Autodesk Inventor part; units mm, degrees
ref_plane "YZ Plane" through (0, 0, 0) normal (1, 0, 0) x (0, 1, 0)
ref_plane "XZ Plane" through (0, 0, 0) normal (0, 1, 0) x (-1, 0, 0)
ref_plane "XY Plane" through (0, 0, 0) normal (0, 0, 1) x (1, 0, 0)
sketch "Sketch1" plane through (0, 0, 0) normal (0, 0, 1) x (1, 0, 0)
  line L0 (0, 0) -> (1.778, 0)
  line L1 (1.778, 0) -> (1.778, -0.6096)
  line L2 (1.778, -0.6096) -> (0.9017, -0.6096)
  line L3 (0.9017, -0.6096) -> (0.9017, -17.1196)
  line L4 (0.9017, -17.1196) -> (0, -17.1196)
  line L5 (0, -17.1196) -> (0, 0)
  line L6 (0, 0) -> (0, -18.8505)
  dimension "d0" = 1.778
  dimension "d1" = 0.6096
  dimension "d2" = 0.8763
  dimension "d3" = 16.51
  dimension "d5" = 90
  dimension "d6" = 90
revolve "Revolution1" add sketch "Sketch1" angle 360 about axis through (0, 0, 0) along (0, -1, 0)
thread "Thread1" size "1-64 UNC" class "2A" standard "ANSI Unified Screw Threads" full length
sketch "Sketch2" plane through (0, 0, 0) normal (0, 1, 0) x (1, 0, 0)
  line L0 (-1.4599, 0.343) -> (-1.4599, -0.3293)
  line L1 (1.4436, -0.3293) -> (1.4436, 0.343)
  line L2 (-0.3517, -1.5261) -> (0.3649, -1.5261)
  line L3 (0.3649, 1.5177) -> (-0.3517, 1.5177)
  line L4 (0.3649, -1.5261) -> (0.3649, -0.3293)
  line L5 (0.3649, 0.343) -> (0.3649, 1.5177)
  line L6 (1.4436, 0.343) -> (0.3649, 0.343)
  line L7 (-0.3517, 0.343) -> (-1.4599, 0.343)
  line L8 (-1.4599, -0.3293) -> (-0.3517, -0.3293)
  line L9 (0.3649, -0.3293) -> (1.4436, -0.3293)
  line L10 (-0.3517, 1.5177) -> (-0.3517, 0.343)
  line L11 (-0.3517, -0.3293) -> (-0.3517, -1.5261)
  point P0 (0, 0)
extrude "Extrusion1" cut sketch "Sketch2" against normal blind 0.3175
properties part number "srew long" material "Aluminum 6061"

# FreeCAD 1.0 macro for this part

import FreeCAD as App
import Part
import Sketcher
Q = App.Units.Quantity

doc = App.newDocument("Part")
body = doc.addObject("PartDesign::Body", "Body")

sketch1 = body.newObject("Sketcher::SketchObject", "Sketch")
sketch1.AttachmentSupport = (doc.getObject("XY_Plane"), [""])
sketch1.MapMode = "FlatFace"
sketch1.addGeometry(Part.LineSegment(App.Vector(1.8, 0, 0), App.Vector(0, 0, 0)), False)
sketch1.addGeometry(Part.LineSegment(App.Vector(0, 0, 0), App.Vector(0, -17.1, 0)), False)
sketch1.addGeometry(Part.LineSegment(App.Vector(0, -17.1, 0), App.Vector(0.9, -17.1, 0)), False)
sketch1.addGeometry(Part.LineSegment(App.Vector(0.9, -17.1, 0), App.Vector(0.9, -0.6, 0)), False)
sketch1.addGeometry(Part.LineSegment(App.Vector(0.9, -0.6, 0), App.Vector(1.8, -0.6, 0)), False)
sketch1.addGeometry(Part.LineSegment(App.Vector(1.8, -0.6, 0), App.Vector(1.8, 0, 0)), False)
sketch1.addConstraint(Sketcher.Constraint("Coincident", 0, 2, 1, 1))
sketch1.addConstraint(Sketcher.Constraint("Coincident", 1, 2, 2, 1))
sketch1.addConstraint(Sketcher.Constraint("Coincident", 2, 2, 3, 1))
sketch1.addConstraint(Sketcher.Constraint("Coincident", 3, 2, 4, 1))
sketch1.addConstraint(Sketcher.Constraint("Coincident", 4, 2, 5, 1))
sketch1.addConstraint(Sketcher.Constraint("Coincident", 5, 2, 0, 1))
sketch1.addConstraint(Sketcher.Constraint("Horizontal", 0))
sketch1.addConstraint(Sketcher.Constraint("Vertical", 1))
sketch1.addConstraint(Sketcher.Constraint("Horizontal", 2))
sketch1.addConstraint(Sketcher.Constraint("Vertical", 3))
sketch1.addConstraint(Sketcher.Constraint("Horizontal", 4))
sketch1.addConstraint(Sketcher.Constraint("Vertical", 5))
sketch1.addConstraint(Sketcher.Constraint("Coincident", 0, 2, -1, 1))
sketch1.addConstraint(Sketcher.Constraint("DistanceX", 0, 2, 0, 1, Q("0.07 in")))
sketch1.addConstraint(Sketcher.Constraint("DistanceY", 3, 1, 3, 2, Q("0.65 in")))
sketch1.addConstraint(Sketcher.Constraint("DistanceY", 5, 1, 5, 2, Q("0.024 in")))
sketch1.addConstraint(Sketcher.Constraint("DistanceX", 4, 1, 4, 2, Q("0.0345 in")))
revolution = body.newObject("PartDesign::Revolution", "Revolution")
revolution.Profile = sketch1
revolution.ReferenceAxis = (sketch1, ["V_Axis"])
revolution.Angle = 360

sketch2 = body.newObject("Sketcher::SketchObject", "Sketch001")
sketch2.AttachmentSupport = (doc.getObject("XZ_Plane"), [""])
sketch2.MapMode = "FlatFace"
sketch2.addGeometry(Part.LineSegment(App.Vector(-0.4, -0.3, 0), App.Vector(-1.5, -0.3, 0)), False)
sketch2.addGeometry(Part.LineSegment(App.Vector(-1.5, -0.3, 0), App.Vector(-1.5, 0.3, 0)), False)
sketch2.addGeometry(Part.LineSegment(App.Vector(-1.5, 0.3, 0), App.Vector(-0.4, 0.3, 0)), False)
sketch2.addGeometry(Part.LineSegment(App.Vector(-0.4, 0.3, 0), App.Vector(-0.4, 1.5, 0)), False)
sketch2.addGeometry(Part.LineSegment(App.Vector(-0.4, 1.5, 0), App.Vector(0.4, 1.5, 0)), False)
sketch2.addGeometry(Part.LineSegment(App.Vector(0.4, 1.5, 0), App.Vector(0.4, 0.3, 0)), False)
sketch2.addGeometry(Part.LineSegment(App.Vector(0.4, 0.3, 0), App.Vector(1.4, 0.3, 0)), False)
sketch2.addGeometry(Part.LineSegment(App.Vector(1.4, 0.3, 0), App.Vector(1.4, -0.3, 0)), False)
sketch2.addGeometry(Part.LineSegment(App.Vector(1.4, -0.3, 0), App.Vector(0.4, -0.3, 0)), False)
sketch2.addGeometry(Part.LineSegment(App.Vector(0.4, -0.3, 0), App.Vector(0.4, -1.5, 0)), False)
sketch2.addGeometry(Part.LineSegment(App.Vector(0.4, -1.5, 0), App.Vector(-0.4, -1.5, 0)), False)
sketch2.addGeometry(Part.LineSegment(App.Vector(-0.4, -1.5, 0), App.Vector(-0.4, -0.3, 0)), False)
sketch2.addConstraint(Sketcher.Constraint("Coincident", 0, 2, 1, 1))
sketch2.addConstraint(Sketcher.Constraint("Coincident", 1, 2, 2, 1))
sketch2.addConstraint(Sketcher.Constraint("Coincident", 2, 2, 3, 1))
sketch2.addConstraint(Sketcher.Constraint("Coincident", 3, 2, 4, 1))
sketch2.addConstraint(Sketcher.Constraint("Coincident", 4, 2, 5, 1))
sketch2.addConstraint(Sketcher.Constraint("Coincident", 5, 2, 6, 1))
sketch2.addConstraint(Sketcher.Constraint("Coincident", 6, 2, 7, 1))
sketch2.addConstraint(Sketcher.Constraint("Coincident", 7, 2, 8, 1))
sketch2.addConstraint(Sketcher.Constraint("Coincident", 8, 2, 9, 1))
sketch2.addConstraint(Sketcher.Constraint("Coincident", 9, 2, 10, 1))
sketch2.addConstraint(Sketcher.Constraint("Coincident", 10, 2, 11, 1))
sketch2.addConstraint(Sketcher.Constraint("Coincident", 11, 2, 0, 1))
sketch2.addConstraint(Sketcher.Constraint("Horizontal", 0))
sketch2.addConstraint(Sketcher.Constraint("Vertical", 1))
sketch2.addConstraint(Sketcher.Constraint("Horizontal", 2))
sketch2.addConstraint(Sketcher.Constraint("Vertical", 3))
sketch2.addConstraint(Sketcher.Constraint("Horizontal", 4))
sketch2.addConstraint(Sketcher.Constraint("Vertical", 5))
sketch2.addConstraint(Sketcher.Constraint("Horizontal", 6))
sketch2.addConstraint(Sketcher.Constraint("Vertical", 7))
sketch2.addConstraint(Sketcher.Constraint("Horizontal", 8))
sketch2.addConstraint(Sketcher.Constraint("Vertical", 9))
sketch2.addConstraint(Sketcher.Constraint("Horizontal", 10))
sketch2.addConstraint(Sketcher.Constraint("Vertical", 11))
sketch2.addConstraint(Sketcher.Constraint("Horizontal", 2, 2, 5, 2))
sketch2.addConstraint(Sketcher.Constraint("Horizontal", 0, 2, 7, 2))
sketch2.addConstraint(Sketcher.Constraint("Vertical", 5, 2, 8, 2))
sketch2.addConstraint(Sketcher.Constraint("Vertical", 3, 2, 10, 2))
sketch2.addConstraint(Sketcher.Constraint("DistanceX", 0, 2, 0, 1, 1.1082))
sketch2.addConstraint(Sketcher.Constraint("DistanceX", 4, 1, 4, 2, 0.7166))
sketch2.addConstraint(Sketcher.Constraint("DistanceX", 6, 1, 6, 2, 1.0787))
sketch2.addConstraint(Sketcher.Constraint("DistanceY", 1, 1, 1, 2, 0.6723))
sketch2.addConstraint(Sketcher.Constraint("DistanceY", 3, 1, 3, 2, 1.1968))
sketch2.addConstraint(Sketcher.Constraint("DistanceY", 9, 2, 9, 1, 1.1747))
sketch2.addConstraint(Sketcher.Constraint("DistanceY", 0, 2, -1, 1, Q("0.0135 in")))
sketch2.addConstraint(Sketcher.Constraint("DistanceX", 0, 2, -1, 1, 1.46))
pocket1 = body.newObject("PartDesign::Pocket", "Pocket")
pocket1.Profile = sketch2
pocket1.Length = Q("0.0125 in")
pocket1.Reversed = True

doc.recompute()
